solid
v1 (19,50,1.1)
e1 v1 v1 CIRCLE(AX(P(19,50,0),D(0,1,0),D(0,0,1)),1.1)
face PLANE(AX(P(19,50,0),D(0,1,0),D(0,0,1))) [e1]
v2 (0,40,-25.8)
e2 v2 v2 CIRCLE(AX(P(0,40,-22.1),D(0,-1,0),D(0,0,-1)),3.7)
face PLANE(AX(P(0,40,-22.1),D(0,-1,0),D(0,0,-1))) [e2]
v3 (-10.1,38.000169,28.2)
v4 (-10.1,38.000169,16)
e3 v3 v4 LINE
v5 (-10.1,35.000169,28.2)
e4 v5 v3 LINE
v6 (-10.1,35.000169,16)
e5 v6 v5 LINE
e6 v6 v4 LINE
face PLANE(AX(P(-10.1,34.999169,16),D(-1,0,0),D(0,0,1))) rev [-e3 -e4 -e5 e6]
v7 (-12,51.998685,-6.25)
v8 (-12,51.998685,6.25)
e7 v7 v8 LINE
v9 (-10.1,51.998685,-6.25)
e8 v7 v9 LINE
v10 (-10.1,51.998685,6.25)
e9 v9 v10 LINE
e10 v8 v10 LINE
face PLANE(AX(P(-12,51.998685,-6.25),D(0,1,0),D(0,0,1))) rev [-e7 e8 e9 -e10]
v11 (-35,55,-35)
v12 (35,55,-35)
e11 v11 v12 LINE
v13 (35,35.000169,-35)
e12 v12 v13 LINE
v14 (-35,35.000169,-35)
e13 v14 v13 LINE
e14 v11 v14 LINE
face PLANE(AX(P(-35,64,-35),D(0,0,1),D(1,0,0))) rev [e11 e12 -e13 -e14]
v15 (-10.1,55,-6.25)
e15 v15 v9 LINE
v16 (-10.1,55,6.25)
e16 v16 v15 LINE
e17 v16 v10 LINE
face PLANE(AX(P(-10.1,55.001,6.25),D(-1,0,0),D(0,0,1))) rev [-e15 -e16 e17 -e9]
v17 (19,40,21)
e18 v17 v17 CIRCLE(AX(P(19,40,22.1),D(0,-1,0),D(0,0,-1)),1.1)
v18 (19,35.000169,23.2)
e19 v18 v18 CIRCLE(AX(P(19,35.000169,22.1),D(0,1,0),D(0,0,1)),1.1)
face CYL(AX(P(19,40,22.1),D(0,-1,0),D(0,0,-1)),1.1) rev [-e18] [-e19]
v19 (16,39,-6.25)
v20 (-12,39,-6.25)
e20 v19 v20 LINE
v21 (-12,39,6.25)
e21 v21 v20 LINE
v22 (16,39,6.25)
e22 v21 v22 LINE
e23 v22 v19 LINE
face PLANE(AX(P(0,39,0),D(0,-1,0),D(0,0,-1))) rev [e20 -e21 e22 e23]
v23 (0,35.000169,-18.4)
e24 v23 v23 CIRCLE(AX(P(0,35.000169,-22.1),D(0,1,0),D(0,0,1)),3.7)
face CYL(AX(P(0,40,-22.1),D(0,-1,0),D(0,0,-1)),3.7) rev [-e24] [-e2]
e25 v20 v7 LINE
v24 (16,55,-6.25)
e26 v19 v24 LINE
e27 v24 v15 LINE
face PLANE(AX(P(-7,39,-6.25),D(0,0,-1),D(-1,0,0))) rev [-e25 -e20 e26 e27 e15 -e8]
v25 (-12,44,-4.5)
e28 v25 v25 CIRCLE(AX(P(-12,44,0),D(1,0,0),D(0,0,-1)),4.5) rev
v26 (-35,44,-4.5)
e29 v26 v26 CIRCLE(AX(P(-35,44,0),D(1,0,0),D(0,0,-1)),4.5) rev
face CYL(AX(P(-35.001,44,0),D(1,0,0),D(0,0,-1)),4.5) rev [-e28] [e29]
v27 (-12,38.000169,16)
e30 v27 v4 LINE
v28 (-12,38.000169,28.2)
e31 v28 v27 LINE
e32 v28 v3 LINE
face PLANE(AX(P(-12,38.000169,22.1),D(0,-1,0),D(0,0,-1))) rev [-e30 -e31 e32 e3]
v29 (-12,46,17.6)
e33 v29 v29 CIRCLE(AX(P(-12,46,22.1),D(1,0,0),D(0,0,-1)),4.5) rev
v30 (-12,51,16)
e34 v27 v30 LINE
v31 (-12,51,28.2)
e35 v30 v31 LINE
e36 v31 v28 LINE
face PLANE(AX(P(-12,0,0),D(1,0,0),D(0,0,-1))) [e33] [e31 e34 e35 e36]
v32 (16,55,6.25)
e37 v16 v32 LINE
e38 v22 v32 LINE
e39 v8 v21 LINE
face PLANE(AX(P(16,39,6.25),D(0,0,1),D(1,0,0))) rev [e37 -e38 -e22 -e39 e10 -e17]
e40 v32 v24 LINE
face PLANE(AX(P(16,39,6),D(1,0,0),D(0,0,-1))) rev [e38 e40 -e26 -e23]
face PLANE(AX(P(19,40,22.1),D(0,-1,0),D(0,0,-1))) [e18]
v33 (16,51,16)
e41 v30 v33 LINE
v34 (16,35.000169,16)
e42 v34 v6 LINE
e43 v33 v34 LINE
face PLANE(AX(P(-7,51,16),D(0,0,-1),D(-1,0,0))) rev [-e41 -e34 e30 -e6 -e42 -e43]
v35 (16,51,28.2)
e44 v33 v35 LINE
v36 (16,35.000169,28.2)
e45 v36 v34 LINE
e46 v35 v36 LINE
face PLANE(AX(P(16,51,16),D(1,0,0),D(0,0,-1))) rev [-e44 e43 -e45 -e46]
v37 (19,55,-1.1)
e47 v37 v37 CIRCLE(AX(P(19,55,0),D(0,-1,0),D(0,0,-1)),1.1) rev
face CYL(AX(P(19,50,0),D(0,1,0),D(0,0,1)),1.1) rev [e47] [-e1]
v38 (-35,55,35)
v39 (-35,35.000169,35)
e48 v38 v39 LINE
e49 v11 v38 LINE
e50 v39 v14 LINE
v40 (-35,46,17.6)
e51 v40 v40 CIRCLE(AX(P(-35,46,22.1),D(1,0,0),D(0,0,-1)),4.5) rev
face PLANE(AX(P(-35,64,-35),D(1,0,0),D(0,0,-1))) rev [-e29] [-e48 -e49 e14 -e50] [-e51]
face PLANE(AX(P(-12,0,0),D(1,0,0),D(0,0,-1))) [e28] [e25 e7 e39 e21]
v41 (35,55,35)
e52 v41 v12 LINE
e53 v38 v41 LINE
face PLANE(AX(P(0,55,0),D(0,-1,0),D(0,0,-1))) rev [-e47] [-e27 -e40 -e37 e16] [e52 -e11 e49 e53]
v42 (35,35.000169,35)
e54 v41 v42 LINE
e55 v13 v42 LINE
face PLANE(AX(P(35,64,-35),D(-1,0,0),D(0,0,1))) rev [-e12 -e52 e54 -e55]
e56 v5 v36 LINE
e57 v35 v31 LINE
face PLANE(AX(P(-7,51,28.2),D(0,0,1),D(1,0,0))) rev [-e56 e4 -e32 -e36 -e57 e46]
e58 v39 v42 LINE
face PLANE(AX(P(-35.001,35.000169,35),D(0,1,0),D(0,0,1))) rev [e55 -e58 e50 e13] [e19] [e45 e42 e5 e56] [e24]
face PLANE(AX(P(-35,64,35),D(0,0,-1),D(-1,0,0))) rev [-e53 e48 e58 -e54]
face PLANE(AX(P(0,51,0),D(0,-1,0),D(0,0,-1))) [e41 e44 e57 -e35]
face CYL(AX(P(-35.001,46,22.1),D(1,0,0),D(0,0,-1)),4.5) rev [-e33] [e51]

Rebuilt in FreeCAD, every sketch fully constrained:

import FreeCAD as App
import Part
import Sketcher

V = App.Vector
Q = App.Units.Quantity


def add_polygon(sketch, points):
    """Adds a closed chain of lines whose ends are joined by coincident constraints."""
    first, n = sketch.GeometryCount, len(points)
    for a, b in zip(points, points[1:] + points[:1]):
        sketch.addGeometry(Part.LineSegment(App.Vector(*a, 0), App.Vector(*b, 0)), False)
    for i in range(n):
        sketch.addConstraint(Sketcher.Constraint("Coincident", first + i, 2, first + (i + 1) % n, 1))

doc = App.newDocument("Part")
body = doc.addObject("PartDesign::Body", "Body")

sketch1 = doc.addObject("Sketcher::SketchObject", "Sketch")
body.addObject(sketch1)
sketch1.AttachmentSupport = (doc.XZ_Plane, [""])
sketch1.MapMode = "FlatFace"
add_polygon(sketch1, [(-32, -32), (-32, 32), (32, 32), (32, -32)])
sketch1.addConstraint([
    Sketcher.Constraint("Vertical", 0),
    Sketcher.Constraint("Horizontal", 1),
    Sketcher.Constraint("Vertical", 2),
    Sketcher.Constraint("Horizontal", 3),
    Sketcher.Constraint("Symmetric", 0, 2, 2, 2, -1, 1),
    Sketcher.Constraint("Equal", 3, 0),
    Sketcher.Constraint("DistanceX", 1, 1, 1, 2, Q("64 mm")),
])
pad1 = doc.addObject("PartDesign::Pad", "Pad")
body.addObject(pad1)
pad1.Profile = sketch1
pad1.Length = 60
pad1.Reversed = True

sketch2 = doc.addObject("Sketcher::SketchObject", "Sketch001")
body.addObject(sketch2)
sketch2.AttachmentSupport = (doc.XZ_Plane, [""])
sketch2.MapMode = "FlatFace"
add_polygon(sketch2, [(-35, -35), (-35, 35), (35, 35), (35, -35)])
add_polygon(sketch2, [(32, 32), (-32, 32), (-32, -32), (32, -32)])
sketch2.addConstraint([
    Sketcher.Constraint("Vertical", 0),
    Sketcher.Constraint("Horizontal", 1),
    Sketcher.Constraint("Vertical", 2),
    Sketcher.Constraint("Horizontal", 3),
    Sketcher.Constraint("Horizontal", 4),
    Sketcher.Constraint("Vertical", 5),
    Sketcher.Constraint("Horizontal", 6),
    Sketcher.Constraint("Vertical", 7),
    Sketcher.Constraint("Symmetric", 0, 2, 2, 2, -1, 1),
    Sketcher.Constraint("Symmetric", 4, 2, 6, 2, -1, 1),
    Sketcher.Constraint("Equal", 3, 0),
    Sketcher.Constraint("Equal", 6, 5),
    Sketcher.Constraint("DistanceX", 1, 1, 1, 2, Q("70 mm")),
    Sketcher.Constraint("DistanceX", 4, 2, 4, 1, Q("64 mm")),
])
pad2 = doc.addObject("PartDesign::Pad", "Pad001")
body.addObject(pad2)
pad2.Profile = sketch2
pad2.Length = 64
pad2.Reversed = True

sketch3 = doc.addObject("Sketcher::SketchObject", "Sketch002")
body.addObject(sketch3)
sketch3.AttachmentSupport = (doc.XZ_Plane, [""])
sketch3.MapMode = "FlatFace"
sketch3.AttachmentOffset = App.Placement(V(0, 0, -60), App.Rotation())
add_polygon(sketch3, [(-7, 6), (16, 6), (16, -6), (-7, -6)])
sketch3.addConstraint([
    Sketcher.Constraint("Horizontal", 0),
    Sketcher.Constraint("Vertical", 1),
    Sketcher.Constraint("Horizontal", 2),
    Sketcher.Constraint("Vertical", 3),
    Sketcher.Constraint("DistanceX", 0, 1, 0, 2, Q("23 mm")),
    Sketcher.Constraint("DistanceY", 1, 2, 1, 1, Q("12.5 mm")),
    Sketcher.Constraint("DistanceX", -1, 1, 0, 2, Q("16 mm")),
    Sketcher.Constraint("DistanceY", -1, 1, 0, 2, Q("6.25 mm")),
])
pocket1 = doc.addObject("PartDesign::Pocket", "Pocket")
body.addObject(pocket1)
pocket1.Profile = sketch3
pocket1.Length = 21
pocket1.Reversed = True

sketch4 = doc.addObject("Sketcher::SketchObject", "Sketch003")
body.addObject(sketch4)
sketch4.AttachmentSupport = (doc.XZ_Plane, [""])
sketch4.MapMode = "FlatFace"
sketch4.AttachmentOffset = App.Placement(V(0, 0, -60), App.Rotation())
sketch4.addGeometry([
    Part.Circle(V(19, 0, 0), V(0, 0, 1), 1.1),
    Part.Circle(V(-9, 0, 0), V(0, 0, 1), 1.1),
], False)
sketch4.addConstraint([
    Sketcher.Constraint("Equal", 0, 1),
    Sketcher.Constraint("PointOnObject", 0, 3, -1),
    Sketcher.Constraint("PointOnObject", 1, 3, -1),
    Sketcher.Constraint("Diameter", 0, Q("2.2 mm")),
    Sketcher.Constraint("DistanceX", -1, 1, 0, 3, Q("19 mm")),
    Sketcher.Constraint("DistanceX", 1, 3, -1, 1, Q("9 mm")),
])
pocket2 = doc.addObject("PartDesign::Pocket", "Pocket001")
body.addObject(pocket2)
pocket2.Profile = sketch4
pocket2.Length = 10
pocket2.Reversed = True

sketch5 = doc.addObject("Sketcher::SketchObject", "Sketch004")
body.addObject(sketch5)
sketch5.AttachmentSupport = (doc.YZ_Plane, [""])
sketch5.MapMode = "FlatFace"
sketch5.AttachmentOffset = App.Placement(V(0, 0, -7), App.Rotation())
sketch5.addGeometry(Part.Circle(V(44, 0, 0), V(0, 0, 1), 4.5), False)
sketch5.addConstraint([
    Sketcher.Constraint("PointOnObject", 0, 3, -1),
    Sketcher.Constraint("Diameter", 0, Q("9 mm")),
    Sketcher.Constraint("DistanceX", -1, 1, 0, 3, Q("44 mm")),
])
pocket3 = doc.addObject("PartDesign::Pocket", "Pocket002")
body.addObject(pocket3)
pocket3.Profile = sketch5
pocket3.Type = "UpToFirst"

sketch6 = doc.addObject("Sketcher::SketchObject", "Sketch005")
body.addObject(sketch6)
sketch6.AttachmentSupport = (doc.XZ_Plane, [""])
sketch6.MapMode = "FlatFace"
add_polygon(sketch6, [(-35, 35), (-35, -35), (35, -35), (35, 35)])
sketch6.addConstraint([
    Sketcher.Constraint("Vertical", 0),
    Sketcher.Constraint("Horizontal", 1),
    Sketcher.Constraint("Vertical", 2),
    Sketcher.Constraint("Horizontal", 3),
    Sketcher.Constraint("Symmetric", 0, 2, 2, 2, -1, 1),
    Sketcher.Constraint("Equal", 3, 0),
    Sketcher.Constraint("DistanceX", 1, 1, 1, 2, Q("70 mm")),
])
pocket4 = doc.addObject("PartDesign::Pocket", "Pocket003")
body.addObject(pocket4)
pocket4.Profile = sketch6
pocket4.Length = 30

sketch7 = doc.addObject("Sketcher::SketchObject", "Sketch006")
body.addObject(sketch7)
sketch7.AttachmentSupport = (doc.XZ_Plane, [""])
sketch7.MapMode = "FlatFace"
sketch7.AttachmentOffset = App.Placement(V(0, 0, -30), App.Rotation())
add_polygon(sketch7, [(-7, 28), (-7, 16), (16, 16), (16, 28)])
sketch7.addConstraint([
    Sketcher.Constraint("Vertical", 0),
    Sketcher.Constraint("Horizontal", 1),
    Sketcher.Constraint("Vertical", 2),
    Sketcher.Constraint("Horizontal", 3),
    Sketcher.Constraint("DistanceX", 1, 1, 1, 2, Q("23 mm")),
    Sketcher.Constraint("DistanceY", 0, 2, 0, 1, Q("12.2 mm")),
    Sketcher.Constraint("DistanceX", 0, 2, -1, 1, Q("7 mm")),
    Sketcher.Constraint("DistanceY", -1, 1, 0, 2, Q("16 mm")),
])
pocket5 = doc.addObject("PartDesign::Pocket", "Pocket004")
body.addObject(pocket5)
pocket5.Profile = sketch7
pocket5.Length = 21

sketch8 = doc.addObject("Sketcher::SketchObject", "Sketch007")
body.addObject(sketch8)
sketch8.AttachmentSupport = (doc.YZ_Plane, [""])
sketch8.MapMode = "FlatFace"
sketch8.AttachmentOffset = App.Placement(V(0, 0, -7), App.Rotation())
sketch8.addGeometry(Part.Circle(V(46, 22.1, 0), V(0, 0, 1), 4.5), False)
sketch8.addConstraint([
    Sketcher.Constraint("Diameter", 0, Q("9 mm")),
    Sketcher.Constraint("DistanceX", -1, 1, 0, 3, Q("46 mm")),
    Sketcher.Constraint("DistanceY", -1, 1, 0, 3, Q("22.1 mm")),
])
pocket6 = doc.addObject("PartDesign::Pocket", "Pocket005")
body.addObject(pocket6)
pocket6.Profile = sketch8
pocket6.Type = "UpToFirst"

sketch9 = doc.addObject("Sketcher::SketchObject", "Sketch008")
body.addObject(sketch9)
sketch9.AttachmentSupport = (doc.XZ_Plane, [""])
sketch9.MapMode = "FlatFace"
sketch9.AttachmentOffset = App.Placement(V(0, 0, -30), App.Rotation())
sketch9.addGeometry([
    Part.Circle(V(19, 22.1, 0), V(0, 0, 1), 1.1),
    Part.Circle(V(-9, 22.1, 0), V(0, 0, 1), 1.1),
], False)
sketch9.addConstraint([
    Sketcher.Constraint("Equal", 0, 1),
    Sketcher.Constraint("Horizontal", 0, 3, 1, 3),
    Sketcher.Constraint("Diameter", 0, Q("2.2 mm")),
    Sketcher.Constraint("DistanceX", -1, 1, 0, 3, Q("19 mm")),
    Sketcher.Constraint("DistanceX", 1, 3, -1, 1, Q("9 mm")),
    Sketcher.Constraint("DistanceY", -1, 1, 0, 3, Q("22.1 mm")),
])
pocket7 = doc.addObject("PartDesign::Pocket", "Pocket006")
body.addObject(pocket7)
pocket7.Profile = sketch9
pocket7.Length = 10

sketch10 = doc.addObject("Sketcher::SketchObject", "Sketch009")
body.addObject(sketch10)
sketch10.AttachmentSupport = (doc.XZ_Plane, [""])
sketch10.MapMode = "FlatFace"
sketch10.AttachmentOffset = App.Placement(V(0, 0, -30), App.Rotation())
sketch10.addGeometry(Part.Circle(V(0, -22.1, 0), V(0, 0, 1), 3.7), False)
sketch10.addConstraint([
    Sketcher.Constraint("PointOnObject", 0, 3, -2),
    Sketcher.Constraint("Diameter", 0, Q("7.4 mm")),
    Sketcher.Constraint("DistanceY", 0, 3, -1, 1, Q("22.1 mm")),
])
pocket8 = doc.addObject("PartDesign::Pocket", "Pocket007")
body.addObject(pocket8)
pocket8.Profile = sketch10
pocket8.Length = 10

sketch11 = doc.addObject("Sketcher::SketchObject", "Sketch010")
body.addObject(sketch11)
sketch11.AttachmentSupport = (doc.XZ_Plane, [""])
sketch11.MapMode = "FlatFace"
sketch11.AttachmentOffset = App.Placement(V(0, 0, -60), App.Rotation())
add_polygon(sketch11, [(-32, -32), (-32, 32), (32, 32), (32, -32)])
sketch11.addConstraint([
    Sketcher.Constraint("Vertical", 0),
    Sketcher.Constraint("Horizontal", 1),
    Sketcher.Constraint("Vertical", 2),
    Sketcher.Constraint("Horizontal", 3),
    Sketcher.Constraint("Symmetric", 0, 2, 2, 2, -1, 1),
    Sketcher.Constraint("Equal", 3, 0),
    Sketcher.Constraint("DistanceX", 1, 1, 1, 2, Q("64 mm")),
])
pocket9 = doc.addObject("PartDesign::Pocket", "Pocket008")
body.addObject(pocket9)
pocket9.Profile = sketch11
pocket9.Length = 5
pocket9.Reversed = True

sketch12 = doc.addObject("Sketcher::SketchObject", "Sketch011")
body.addObject(sketch12)
sketch12.AttachmentSupport = (doc.YZ_Plane, [""])
sketch12.MapMode = "FlatFace"
sketch12.AttachmentOffset = App.Placement(V(0, 0, -7), App.Rotation())
add_polygon(sketch12, [(52, 6), (39, 6), (39, -6), (52, -6)])
sketch12.addConstraint([
    Sketcher.Constraint("Horizontal", 0),
    Sketcher.Constraint("Vertical", 1),
    Sketcher.Constraint("Horizontal", 2),
    Sketcher.Constraint("Vertical", 3),
    Sketcher.Constraint("DistanceY", 1, 2, 1, 1, Q("12.5 mm")),
    Sketcher.Constraint("DistanceX", -1, 1, 0, 2, Q("39 mm")),
    Sketcher.Constraint("DistanceY", -1, 1, 0, 2, Q("6.25 mm")),
    Sketcher.Constraint("DistanceX", 0, 2, 0, 1, Q("12.998685 mm")),
])
pocket10 = doc.addObject("PartDesign::Pocket", "Pocket009")
body.addObject(pocket10)
pocket10.Profile = sketch12
pocket10.Length = 5

sketch13 = doc.addObject("Sketcher::SketchObject", "Sketch012")
body.addObject(sketch13)
sketch13.AttachmentSupport = (doc.YZ_Plane, [""])
sketch13.MapMode = "FlatFace"
sketch13.AttachmentOffset = App.Placement(V(0, 0, 35), App.Rotation())
add_polygon(sketch13, [(64, 35), (55, 35), (55, -35), (64, -35)])
sketch13.addConstraint([
    Sketcher.Constraint("Horizontal", 0),
    Sketcher.Constraint("Vertical", 1),
    Sketcher.Constraint("Horizontal", 2),
    Sketcher.Constraint("Vertical", 3),
    Sketcher.Constraint("DistanceX", 0, 2, 0, 1, Q("9 mm")),
    Sketcher.Constraint("DistanceY", 1, 2, 1, 1, Q("70 mm")),
    Sketcher.Constraint("DistanceX", -1, 1, 0, 2, Q("55 mm")),
    Sketcher.Constraint("DistanceY", -1, 1, 0, 2, Q("35 mm")),
])
pocket11 = doc.addObject("PartDesign::Pocket", "Pocket010")
body.addObject(pocket11)
pocket11.Profile = sketch13
pocket11.Length = 70

sketch14 = doc.addObject("Sketcher::SketchObject", "Sketch013")
body.addObject(sketch14)
sketch14.AttachmentSupport = (doc.YZ_Plane, [""])
sketch14.MapMode = "FlatFace"
sketch14.AttachmentOffset = App.Placement(V(0, 0, 35), App.Rotation())
add_polygon(sketch14, [(35, 35), (30, 35), (30, -35), (35, -35)])
sketch14.addConstraint([
    Sketcher.Constraint("Horizontal", 0),
    Sketcher.Constraint("Vertical", 1),
    Sketcher.Constraint("Horizontal", 2),
    Sketcher.Constraint("Vertical", 3),
    Sketcher.Constraint("DistanceY", 1, 2, 1, 1, Q("70 mm")),
    Sketcher.Constraint("DistanceX", -1, 1, 0, 2, Q("30 mm")),
    Sketcher.Constraint("DistanceY", -1, 1, 0, 2, Q("35 mm")),
    Sketcher.Constraint("DistanceX", 0, 2, 0, 1, Q("5.000169 mm")),
])
pocket12 = doc.addObject("PartDesign::Pocket", "Pocket011")
body.addObject(pocket12)
pocket12.Profile = sketch14
pocket12.Type = "UpToFirst"

sketch15 = doc.addObject("Sketcher::SketchObject", "Sketch014")
body.addObject(sketch15)
sketch15.AttachmentSupport = (doc.YZ_Plane, [""])
sketch15.MapMode = "FlatFace"
sketch15.AttachmentOffset = App.Placement(V(0, 0, -7), App.Rotation())
add_polygon(sketch15, [(51, 16), (51, 28), (38, 28), (38, 16)])
sketch15.addConstraint([
    Sketcher.Constraint("Vertical", 0),
    Sketcher.Constraint("Horizontal", 1),
    Sketcher.Constraint("Vertical", 2),
    Sketcher.Constraint("Horizontal", 3),
    Sketcher.Constraint("DistanceY", 0, 1, 0, 2, Q("12.2 mm")),
    Sketcher.Constraint("DistanceX", -1, 1, 0, 2, Q("51 mm")),
    Sketcher.Constraint("DistanceY", -1, 1, 2, 2, Q("16 mm")),
    Sketcher.Constraint("DistanceX", 1, 2, 1, 1, Q("12.999831 mm")),
])
pocket13 = doc.addObject("PartDesign::Pocket", "Pocket012")
body.addObject(pocket13)
pocket13.Profile = sketch15
pocket13.Length = 5

sketch16 = doc.addObject("Sketcher::SketchObject", "Sketch015")
body.addObject(sketch16)
sketch16.AttachmentSupport = (doc.XZ_Plane, [""])
sketch16.MapMode = "FlatFace"
sketch16.AttachmentOffset = App.Placement(V(0, 0, -51.998685), App.Rotation())
add_polygon(sketch16, [(-10.1, 6.2), (-10.1, -6.2), (-7, -6.2), (-7, 6.2)])
sketch16.addConstraint([
    Sketcher.Constraint("Vertical", 0),
    Sketcher.Constraint("Horizontal", 1),
    Sketcher.Constraint("Vertical", 2),
    Sketcher.Constraint("Horizontal", 3),
    Sketcher.Constraint("DistanceX", 1, 1, 1, 2, Q("3.1 mm")),
    Sketcher.Constraint("DistanceY", 0, 2, 0, 1, Q("12.5 mm")),
    Sketcher.Constraint("DistanceX", 1, 2, -1, 1, Q("7 mm")),
    Sketcher.Constraint("DistanceY", 0, 2, -1, 1, Q("6.25 mm")),
])
pocket14 = doc.addObject("PartDesign::Pocket", "Pocket013")
body.addObject(pocket14)
pocket14.Profile = sketch16
pocket14.Length = 3.001315

sketch17 = doc.addObject("Sketcher::SketchObject", "Sketch016")
body.addObject(sketch17)
sketch17.AttachmentSupport = (doc.XZ_Plane, [""])
sketch17.MapMode = "FlatFace"
sketch17.AttachmentOffset = App.Placement(V(0, 0, -38.000169), App.Rotation())
add_polygon(sketch17, [(-10.1, 16), (-10.1, 28.2), (-7, 28.2), (-7, 16)])
sketch17.addConstraint([
    Sketcher.Constraint("Vertical", 0),
    Sketcher.Constraint("Horizontal", 1),
    Sketcher.Constraint("Vertical", 2),
    Sketcher.Constraint("Horizontal", 3),
    Sketcher.Constraint("DistanceX", 1, 1, 1, 2, Q("3.1 mm")),
    Sketcher.Constraint("DistanceY", 0, 1, 0, 2, Q("12.2 mm")),
    Sketcher.Constraint("DistanceX", 1, 2, -1, 1, Q("7 mm")),
    Sketcher.Constraint("DistanceY", -1, 1, 2, 2, Q("16 mm")),
])
pocket15 = doc.addObject("PartDesign::Pocket", "Pocket014")
body.addObject(pocket15)
pocket15.Profile = sketch17
pocket15.Length = 3
pocket15.Reversed = True

doc.recompute()
